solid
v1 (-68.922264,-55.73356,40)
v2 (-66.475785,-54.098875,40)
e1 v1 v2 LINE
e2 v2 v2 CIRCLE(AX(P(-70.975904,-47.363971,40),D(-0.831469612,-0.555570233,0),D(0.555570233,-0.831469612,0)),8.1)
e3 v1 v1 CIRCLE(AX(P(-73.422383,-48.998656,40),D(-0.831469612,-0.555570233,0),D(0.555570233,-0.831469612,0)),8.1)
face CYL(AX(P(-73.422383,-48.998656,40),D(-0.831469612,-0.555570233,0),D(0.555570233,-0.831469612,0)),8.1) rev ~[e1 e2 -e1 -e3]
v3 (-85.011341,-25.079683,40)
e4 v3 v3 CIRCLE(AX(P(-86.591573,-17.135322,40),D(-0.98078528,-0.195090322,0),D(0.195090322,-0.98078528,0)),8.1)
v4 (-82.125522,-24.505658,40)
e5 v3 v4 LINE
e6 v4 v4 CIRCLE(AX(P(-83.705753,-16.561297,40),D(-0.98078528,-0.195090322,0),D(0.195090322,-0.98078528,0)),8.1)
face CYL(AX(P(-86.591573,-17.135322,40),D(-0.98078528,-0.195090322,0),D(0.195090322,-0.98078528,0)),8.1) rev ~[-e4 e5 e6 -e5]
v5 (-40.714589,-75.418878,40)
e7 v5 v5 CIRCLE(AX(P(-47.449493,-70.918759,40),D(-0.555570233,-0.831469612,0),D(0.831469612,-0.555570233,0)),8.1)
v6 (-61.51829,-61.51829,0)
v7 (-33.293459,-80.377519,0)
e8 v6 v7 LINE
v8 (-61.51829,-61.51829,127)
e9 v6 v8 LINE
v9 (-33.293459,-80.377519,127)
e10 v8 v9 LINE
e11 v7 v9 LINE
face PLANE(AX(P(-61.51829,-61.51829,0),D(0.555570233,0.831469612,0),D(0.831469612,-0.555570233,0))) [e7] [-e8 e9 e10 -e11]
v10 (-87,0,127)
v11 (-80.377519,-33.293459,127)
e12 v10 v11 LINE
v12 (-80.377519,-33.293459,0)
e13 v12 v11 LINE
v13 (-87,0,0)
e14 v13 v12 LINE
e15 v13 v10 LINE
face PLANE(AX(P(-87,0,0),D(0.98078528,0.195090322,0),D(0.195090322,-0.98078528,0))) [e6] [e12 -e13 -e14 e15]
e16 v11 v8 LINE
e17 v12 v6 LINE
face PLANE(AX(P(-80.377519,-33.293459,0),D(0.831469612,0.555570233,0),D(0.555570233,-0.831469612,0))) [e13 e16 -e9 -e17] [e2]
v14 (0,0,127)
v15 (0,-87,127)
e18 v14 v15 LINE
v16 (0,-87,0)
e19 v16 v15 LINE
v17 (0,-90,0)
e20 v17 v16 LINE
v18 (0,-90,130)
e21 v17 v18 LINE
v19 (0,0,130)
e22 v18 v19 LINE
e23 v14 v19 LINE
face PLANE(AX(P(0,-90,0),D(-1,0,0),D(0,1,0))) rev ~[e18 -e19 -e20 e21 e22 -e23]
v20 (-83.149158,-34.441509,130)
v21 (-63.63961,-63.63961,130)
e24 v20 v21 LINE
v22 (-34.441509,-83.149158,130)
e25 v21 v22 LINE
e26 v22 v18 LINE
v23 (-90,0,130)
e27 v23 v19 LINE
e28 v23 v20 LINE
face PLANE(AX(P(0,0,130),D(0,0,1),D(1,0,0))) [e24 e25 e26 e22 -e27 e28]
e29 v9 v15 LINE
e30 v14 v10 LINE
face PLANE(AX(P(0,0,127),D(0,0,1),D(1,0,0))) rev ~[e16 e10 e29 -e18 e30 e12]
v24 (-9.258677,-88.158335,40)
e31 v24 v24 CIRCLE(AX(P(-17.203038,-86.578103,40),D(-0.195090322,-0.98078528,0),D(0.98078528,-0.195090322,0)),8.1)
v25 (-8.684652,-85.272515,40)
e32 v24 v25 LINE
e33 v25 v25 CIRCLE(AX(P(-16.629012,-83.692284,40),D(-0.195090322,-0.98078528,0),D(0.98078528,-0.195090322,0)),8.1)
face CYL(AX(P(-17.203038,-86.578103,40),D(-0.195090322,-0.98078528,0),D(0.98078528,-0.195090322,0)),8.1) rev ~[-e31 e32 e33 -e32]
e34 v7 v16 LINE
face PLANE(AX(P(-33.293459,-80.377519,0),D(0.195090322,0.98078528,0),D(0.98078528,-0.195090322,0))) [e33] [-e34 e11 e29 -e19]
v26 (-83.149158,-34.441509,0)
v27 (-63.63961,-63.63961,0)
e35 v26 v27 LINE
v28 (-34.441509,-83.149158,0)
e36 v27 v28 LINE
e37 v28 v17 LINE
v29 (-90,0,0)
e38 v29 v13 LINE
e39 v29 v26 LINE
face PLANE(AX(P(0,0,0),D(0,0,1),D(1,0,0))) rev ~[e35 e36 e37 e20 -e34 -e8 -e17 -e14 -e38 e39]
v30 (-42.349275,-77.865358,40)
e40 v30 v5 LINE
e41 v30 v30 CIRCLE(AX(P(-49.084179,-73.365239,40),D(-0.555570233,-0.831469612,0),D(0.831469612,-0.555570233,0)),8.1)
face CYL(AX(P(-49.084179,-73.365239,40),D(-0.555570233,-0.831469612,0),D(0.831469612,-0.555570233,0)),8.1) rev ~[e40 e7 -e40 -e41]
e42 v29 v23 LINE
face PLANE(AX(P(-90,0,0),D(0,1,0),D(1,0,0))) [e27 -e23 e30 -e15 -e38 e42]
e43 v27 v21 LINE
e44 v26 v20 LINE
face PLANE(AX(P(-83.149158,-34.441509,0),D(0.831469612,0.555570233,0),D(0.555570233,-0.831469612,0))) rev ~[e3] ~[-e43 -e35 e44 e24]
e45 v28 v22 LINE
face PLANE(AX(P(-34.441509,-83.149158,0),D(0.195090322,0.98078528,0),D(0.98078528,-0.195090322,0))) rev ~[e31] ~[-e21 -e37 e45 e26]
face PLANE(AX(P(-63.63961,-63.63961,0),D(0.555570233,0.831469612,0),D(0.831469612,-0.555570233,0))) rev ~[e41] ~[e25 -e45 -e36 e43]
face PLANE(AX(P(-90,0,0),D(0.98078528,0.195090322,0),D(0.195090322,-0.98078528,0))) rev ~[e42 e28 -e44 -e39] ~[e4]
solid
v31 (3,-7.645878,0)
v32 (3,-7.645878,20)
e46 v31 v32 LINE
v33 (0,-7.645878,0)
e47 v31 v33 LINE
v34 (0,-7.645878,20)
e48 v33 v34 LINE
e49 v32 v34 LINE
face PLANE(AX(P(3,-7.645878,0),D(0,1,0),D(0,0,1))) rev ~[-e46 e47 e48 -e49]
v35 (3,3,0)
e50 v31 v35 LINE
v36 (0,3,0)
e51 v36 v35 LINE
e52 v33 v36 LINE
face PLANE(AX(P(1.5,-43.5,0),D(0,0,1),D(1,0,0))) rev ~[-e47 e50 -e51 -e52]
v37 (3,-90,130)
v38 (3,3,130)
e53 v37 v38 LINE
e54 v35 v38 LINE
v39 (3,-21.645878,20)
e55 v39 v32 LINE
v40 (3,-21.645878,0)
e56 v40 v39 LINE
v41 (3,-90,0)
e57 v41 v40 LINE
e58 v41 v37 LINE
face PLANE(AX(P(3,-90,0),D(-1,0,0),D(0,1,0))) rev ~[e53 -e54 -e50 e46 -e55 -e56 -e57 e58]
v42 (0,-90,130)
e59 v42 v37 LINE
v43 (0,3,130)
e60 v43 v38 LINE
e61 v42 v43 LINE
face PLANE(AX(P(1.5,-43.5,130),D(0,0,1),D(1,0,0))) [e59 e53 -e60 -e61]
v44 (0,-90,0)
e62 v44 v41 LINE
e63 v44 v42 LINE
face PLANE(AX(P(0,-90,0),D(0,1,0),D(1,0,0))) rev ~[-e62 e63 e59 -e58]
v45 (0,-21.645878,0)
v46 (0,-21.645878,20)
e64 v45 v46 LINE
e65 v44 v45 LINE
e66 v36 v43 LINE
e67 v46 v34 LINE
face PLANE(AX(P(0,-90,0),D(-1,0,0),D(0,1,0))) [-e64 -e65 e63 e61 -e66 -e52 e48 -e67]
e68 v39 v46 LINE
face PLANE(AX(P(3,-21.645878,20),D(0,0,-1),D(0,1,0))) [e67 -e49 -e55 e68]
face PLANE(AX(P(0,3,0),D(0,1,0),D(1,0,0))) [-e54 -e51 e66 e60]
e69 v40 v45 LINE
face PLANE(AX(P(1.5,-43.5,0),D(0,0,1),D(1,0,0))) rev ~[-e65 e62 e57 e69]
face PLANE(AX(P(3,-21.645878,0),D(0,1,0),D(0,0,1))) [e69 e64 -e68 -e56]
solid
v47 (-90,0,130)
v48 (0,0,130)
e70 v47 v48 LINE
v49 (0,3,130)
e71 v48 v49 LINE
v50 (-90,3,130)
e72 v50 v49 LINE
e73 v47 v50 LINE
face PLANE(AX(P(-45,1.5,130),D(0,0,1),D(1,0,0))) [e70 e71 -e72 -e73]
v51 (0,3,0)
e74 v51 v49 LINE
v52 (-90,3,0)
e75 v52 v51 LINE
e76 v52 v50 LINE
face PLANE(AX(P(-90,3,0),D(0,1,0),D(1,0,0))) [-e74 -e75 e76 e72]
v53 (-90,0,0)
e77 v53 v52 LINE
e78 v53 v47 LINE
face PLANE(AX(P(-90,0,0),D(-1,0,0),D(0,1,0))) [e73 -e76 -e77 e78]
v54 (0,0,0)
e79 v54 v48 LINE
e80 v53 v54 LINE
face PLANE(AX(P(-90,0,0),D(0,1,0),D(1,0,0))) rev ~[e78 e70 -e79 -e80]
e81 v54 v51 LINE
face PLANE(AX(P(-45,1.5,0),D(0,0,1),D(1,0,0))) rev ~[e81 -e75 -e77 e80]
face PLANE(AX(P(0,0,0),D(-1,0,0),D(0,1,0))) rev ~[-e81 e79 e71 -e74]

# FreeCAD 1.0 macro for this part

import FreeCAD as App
import Part
import Sketcher

V = App.Vector
Q = App.Units.Quantity

doc = App.newDocument("Part")
body = doc.addObject("PartDesign::Body", "Body")

# Sketch on XY plane
sketch1 = body.newObject("Sketcher::SketchObject", "Sketch")
sketch1.AttachmentSupport = (doc.getObject("XY_Plane"), [""])
sketch1.MapMode = "FlatFace"
sketch1.addGeometry([
    Part.LineSegment(V(-90, 3, 0), V(-90, 0, 0)),
    Part.LineSegment(V(-90, 0, 0), V(0, 0, 0)),
    Part.LineSegment(V(0, 0, 0), V(0, 3, 0)),
    Part.LineSegment(V(0, 3, 0), V(-90, 3, 0)),
], False)
sketch1.addConstraint([
    Sketcher.Constraint("Coincident", 0, 2, 1, 1),
    Sketcher.Constraint("Coincident", 1, 2, 2, 1),
    Sketcher.Constraint("Coincident", 2, 2, 3, 1),
    Sketcher.Constraint("Coincident", 3, 2, 0, 1),
    Sketcher.Constraint("Vertical", 0),
    Sketcher.Constraint("Horizontal", 1),
    Sketcher.Constraint("Vertical", 2),
    Sketcher.Constraint("Horizontal", 3),
    Sketcher.Constraint("Coincident", 1, 2, -1, 1),
    Sketcher.Constraint("DistanceX", 1, 1, 1, 2, 90.0),
    Sketcher.Constraint("DistanceY", 0, 2, 0, 1, 3.0),
])
pad1 = body.newObject("PartDesign::Pad", "Pad")
pad1.Profile = sketch1
pad1.Length = 130
body2 = doc.addObject("PartDesign::Body", "Body001")

# Sketch on XY plane
sketch2 = body2.newObject("Sketcher::SketchObject", "Sketch001")
sketch2.AttachmentSupport = (doc.getObject("XY_Plane001"), [""])
sketch2.MapMode = "FlatFace"
sketch2.addGeometry([
    Part.LineSegment(V(-90, 90, 0), V(-90, 0, 0)),
    Part.LineSegment(V(-90, 0, 0), V(0, 0, 0)),
    Part.LineSegment(V(0, 0, 0), V(0, 90, 0)),
    Part.LineSegment(V(0, 90, 0), V(-90, 90, 0)),
], False)
sketch2.addConstraint([
    Sketcher.Constraint("Coincident", 0, 2, 1, 1),
    Sketcher.Constraint("Coincident", 1, 2, 2, 1),
    Sketcher.Constraint("Coincident", 2, 2, 3, 1),
    Sketcher.Constraint("Coincident", 3, 2, 0, 1),
    Sketcher.Constraint("Vertical", 0),
    Sketcher.Constraint("Horizontal", 1),
    Sketcher.Constraint("Vertical", 2),
    Sketcher.Constraint("Horizontal", 3),
    Sketcher.Constraint("Coincident", 1, 2, -1, 1),
    Sketcher.Constraint("Equal", 3, 0),
    Sketcher.Constraint("DistanceX", 1, 1, 1, 2, 90.0),
])
pad2 = body2.newObject("PartDesign::Pad", "Pad001")
pad2.Profile = sketch2
pad2.Length = 130
body3 = doc.addObject("PartDesign::Body", "Body002")

# Sketch on XY plane
sketch3 = body3.newObject("Sketcher::SketchObject", "Sketch002")
sketch3.AttachmentSupport = (doc.getObject("XY_Plane002"), [""])
sketch3.MapMode = "FlatFace"
sketch3.addGeometry([
    Part.LineSegment(V(0, 90, 0), V(0, -90, 0)),
    Part.LineSegment(V(0, -90, 0), V(90, -90, 0)),
    Part.LineSegment(V(90, -90, 0), V(90, 90, 0)),
    Part.LineSegment(V(90, 90, 0), V(0, 90, 0)),
], False)
sketch3.addConstraint([
    Sketcher.Constraint("Coincident", 0, 2, 1, 1),
    Sketcher.Constraint("Coincident", 1, 2, 2, 1),
    Sketcher.Constraint("Coincident", 2, 2, 3, 1),
    Sketcher.Constraint("Coincident", 3, 2, 0, 1),
    Sketcher.Constraint("Vertical", 0),
    Sketcher.Constraint("Horizontal", 1),
    Sketcher.Constraint("Vertical", 2),
    Sketcher.Constraint("Horizontal", 3),
    Sketcher.Constraint("Symmetric", 0, 2, 3, 2, -1, 1),
    Sketcher.Constraint("DistanceX", 1, 1, 1, 2, 90.0),
    Sketcher.Constraint("DistanceY", 0, 2, 0, 1, 180.0),
])
pad3 = body3.newObject("PartDesign::Pad", "Pad002")
pad3.Profile = sketch3
pad3.Length = 130
body4 = doc.addObject("PartDesign::Body", "Body003")

# Sketch on XY plane
sketch4 = body4.newObject("Sketcher::SketchObject", "Sketch003")
sketch4.AttachmentSupport = (doc.getObject("XY_Plane003"), [""])
sketch4.MapMode = "FlatFace"
sketch4.addGeometry([
    Part.LineSegment(V(87, 0, 0), V(80, 33, 0)),  # 0
    Part.LineSegment(V(80, 33, 0), V(62, 62, 0)),  # 1
    Part.LineSegment(V(62, 62, 0), V(33, 80, 0)),  # 2
    Part.LineSegment(V(33, 80, 0), V(0, 87, 0)),  # 3
    Part.LineSegment(V(0, 87, 0), V(-33, 80, 0)),  # 4
    Part.LineSegment(V(-33, 80, 0), V(-62, 62, 0)),  # 5
    Part.LineSegment(V(-62, 62, 0), V(-80, 33, 0)),  # 6
    Part.LineSegment(V(-80, 33, 0), V(-87, 0, 0)),  # 7
    Part.LineSegment(V(-87, 0, 0), V(-80, -33, 0)),  # 8
    Part.LineSegment(V(-80, -33, 0), V(-62, -62, 0)),  # 9
    Part.LineSegment(V(-62, -62, 0), V(-33, -80, 0)),  # 10
    Part.LineSegment(V(-33, -80, 0), V(0, -87, 0)),  # 11
    Part.LineSegment(V(0, -87, 0), V(33, -80, 0)),  # 12
    Part.LineSegment(V(33, -80, 0), V(62, -62, 0)),  # 13
    Part.LineSegment(V(62, -62, 0), V(80, -33, 0)),  # 14
    Part.LineSegment(V(80, -33, 0), V(87, 0, 0)),  # 15
], False)
sketch4.addConstraint([
    Sketcher.Constraint("Coincident", 0, 2, 1, 1),
    Sketcher.Constraint("Coincident", 1, 2, 2, 1),
    Sketcher.Constraint("Coincident", 2, 2, 3, 1),
    Sketcher.Constraint("Coincident", 3, 2, 4, 1),
    Sketcher.Constraint("Coincident", 4, 2, 5, 1),
    Sketcher.Constraint("Coincident", 5, 2, 6, 1),
    Sketcher.Constraint("Coincident", 6, 2, 7, 1),
    Sketcher.Constraint("Coincident", 7, 2, 8, 1),
    Sketcher.Constraint("Coincident", 8, 2, 9, 1),
    Sketcher.Constraint("Coincident", 9, 2, 10, 1),
    Sketcher.Constraint("Coincident", 10, 2, 11, 1),
    Sketcher.Constraint("Coincident", 11, 2, 12, 1),
    Sketcher.Constraint("Coincident", 12, 2, 13, 1),
    Sketcher.Constraint("Coincident", 13, 2, 14, 1),
    Sketcher.Constraint("Coincident", 14, 2, 15, 1),
    Sketcher.Constraint("Coincident", 15, 2, 0, 1),
    Sketcher.Constraint("Symmetric", 0, 2, 8, 2, -1, 1),
    Sketcher.Constraint("Symmetric", 1, 2, 9, 2, -1, 1),
    Sketcher.Constraint("Symmetric", 2, 2, 10, 2, -1, 1),
    Sketcher.Constraint("Symmetric", 3, 2, 11, 2, -1, 1),
    Sketcher.Constraint("Symmetric", 4, 2, 12, 2, -1, 1),
    Sketcher.Constraint("Symmetric", 5, 2, 13, 2, -1, 1),
    Sketcher.Constraint("Symmetric", 6, 2, 14, 2, -1, 1),
    Sketcher.Constraint("Symmetric", 7, 2, 15, 2, -1, 1),
    Sketcher.Constraint("Symmetric", 2, 2, 4, 2, -2),
    Sketcher.Constraint("Symmetric", 1, 2, 5, 2, -2),
    Sketcher.Constraint("Symmetric", 0, 2, 6, 2, -2),
    Sketcher.Constraint("PointOnObject", 3, 2, -2),
    Sketcher.Constraint("PointOnObject", 7, 2, -1),
    Sketcher.Constraint("Perpendicular", 0, 4),
    Sketcher.Constraint("Perpendicular", 1, 5),
    Sketcher.Constraint("Equal", 0, 1),
    Sketcher.Constraint("Equal", 1, 2),
    Sketcher.Constraint("Equal", 2, 3),
    Sketcher.Constraint("DistanceY", -1, 1, 3, 2, 87.0),
    Sketcher.Constraint("Angle", 0, Q("101.25 deg")),
    Sketcher.Constraint("Angle", 1, Q("123.75 deg")),
])
pad4 = body4.newObject("PartDesign::Pad", "Pad003")
pad4.Profile = sketch4
pad4.Length = 127
body5 = doc.addObject("PartDesign::Body", "Body004")

# Sketch on XY plane
sketch5 = body5.newObject("Sketcher::SketchObject", "Sketch004")
sketch5.AttachmentSupport = (doc.getObject("XY_Plane004"), [""])
sketch5.MapMode = "FlatFace"
sketch5.addGeometry([
    Part.LineSegment(V(90, 0, 0), V(83, 34, 0)),  # 0
    Part.LineSegment(V(83, 34, 0), V(64, 64, 0)),  # 1
    Part.LineSegment(V(64, 64, 0), V(34, 83, 0)),  # 2
    Part.LineSegment(V(34, 83, 0), V(0, 90, 0)),  # 3
    Part.LineSegment(V(0, 90, 0), V(-34, 83, 0)),  # 4
    Part.LineSegment(V(-34, 83, 0), V(-64, 64, 0)),  # 5
    Part.LineSegment(V(-64, 64, 0), V(-83, 34, 0)),  # 6
    Part.LineSegment(V(-83, 34, 0), V(-90, 0, 0)),  # 7
    Part.LineSegment(V(-90, 0, 0), V(-83, -34, 0)),  # 8
    Part.LineSegment(V(-83, -34, 0), V(-64, -64, 0)),  # 9
    Part.LineSegment(V(-64, -64, 0), V(-34, -83, 0)),  # 10
    Part.LineSegment(V(-34, -83, 0), V(0, -90, 0)),  # 11
    Part.LineSegment(V(0, -90, 0), V(34, -83, 0)),  # 12
    Part.LineSegment(V(34, -83, 0), V(64, -64, 0)),  # 13
    Part.LineSegment(V(64, -64, 0), V(83, -34, 0)),  # 14
    Part.LineSegment(V(83, -34, 0), V(90, 0, 0)),  # 15
], False)
sketch5.addConstraint([
    Sketcher.Constraint("Coincident", 0, 2, 1, 1),
    Sketcher.Constraint("Coincident", 1, 2, 2, 1),
    Sketcher.Constraint("Coincident", 2, 2, 3, 1),
    Sketcher.Constraint("Coincident", 3, 2, 4, 1),
    Sketcher.Constraint("Coincident", 4, 2, 5, 1),
    Sketcher.Constraint("Coincident", 5, 2, 6, 1),
    Sketcher.Constraint("Coincident", 6, 2, 7, 1),
    Sketcher.Constraint("Coincident", 7, 2, 8, 1),
    Sketcher.Constraint("Coincident", 8, 2, 9, 1),
    Sketcher.Constraint("Coincident", 9, 2, 10, 1),
    Sketcher.Constraint("Coincident", 10, 2, 11, 1),
    Sketcher.Constraint("Coincident", 11, 2, 12, 1),
    Sketcher.Constraint("Coincident", 12, 2, 13, 1),
    Sketcher.Constraint("Coincident", 13, 2, 14, 1),
    Sketcher.Constraint("Coincident", 14, 2, 15, 1),
    Sketcher.Constraint("Coincident", 15, 2, 0, 1),
    Sketcher.Constraint("Symmetric", 0, 2, 8, 2, -1, 1),
    Sketcher.Constraint("Symmetric", 1, 2, 9, 2, -1, 1),
    Sketcher.Constraint("Symmetric", 2, 2, 10, 2, -1, 1),
    Sketcher.Constraint("Symmetric", 3, 2, 11, 2, -1, 1),
    Sketcher.Constraint("Symmetric", 4, 2, 12, 2, -1, 1),
    Sketcher.Constraint("Symmetric", 5, 2, 13, 2, -1, 1),
    Sketcher.Constraint("Symmetric", 6, 2, 14, 2, -1, 1),
    Sketcher.Constraint("Symmetric", 7, 2, 15, 2, -1, 1),
    Sketcher.Constraint("Symmetric", 2, 2, 4, 2, -2),
    Sketcher.Constraint("Symmetric", 1, 2, 5, 2, -2),
    Sketcher.Constraint("Symmetric", 0, 2, 6, 2, -2),
    Sketcher.Constraint("PointOnObject", 3, 2, -2),
    Sketcher.Constraint("PointOnObject", 7, 2, -1),
    Sketcher.Constraint("Perpendicular", 0, 4),
    Sketcher.Constraint("Perpendicular", 1, 5),
    Sketcher.Constraint("Equal", 0, 1),
    Sketcher.Constraint("Equal", 1, 2),
    Sketcher.Constraint("Equal", 2, 3),
    Sketcher.Constraint("DistanceY", -1, 1, 3, 2, 90.0),
    Sketcher.Constraint("Angle", 0, Q("101.25 deg")),
    Sketcher.Constraint("Angle", 1, Q("123.75 deg")),
])
pad5 = body5.newObject("PartDesign::Pad", "Pad004")
pad5.Profile = sketch5
pad5.Length = 130
doc.recompute()

boolean = body5.newObject("PartDesign::Boolean", "Boolean")
boolean.Type = "Cut"
boolean.addObjects([body4])
doc.recompute()

boolean2 = body5.newObject("PartDesign::Boolean", "Boolean001")
boolean2.Type = "Cut"
boolean2.addObjects([body3])
doc.recompute()

boolean3 = body5.newObject("PartDesign::Boolean", "Boolean002")
boolean3.Type = "Cut"
boolean3.addObjects([body2])

# Sketch on an angled plane
sketch6 = body5.newObject("Sketcher::SketchObject", "Sketch005")
sketch6.Placement = App.Placement(V(-86.574579, -17.220754, 0), App.Rotation(V(0.195090322, -0.98078528, 0), V(0, 0, 0.999999999), V(-0.98078528, -0.195090322, 0), "ZXY"))
sketch6.addGeometry(Part.Circle(V(0, 40, 0), V(0, 0, 1), 8), False)
sketch6.addConstraint([
    Sketcher.Constraint("Diameter", 0, 16.2),
    Sketcher.Constraint("DistanceY", -1, 1, 0, 3, 40.0),
    Sketcher.Constraint("DistanceX", 0, 3, -1, 1, 0.087106),
])
pocket1 = body5.newObject("PartDesign::Pocket", "Pocket")
pocket1.Profile = sketch6
pocket1.Length = 3

# Sketch on an angled plane
sketch7 = body5.newObject("Sketcher::SketchObject", "Sketch006")
sketch7.Placement = App.Placement(V(-73.394384, -49.04056, 0), App.Rotation(V(0.555570233, -0.831469612, 0), V(0, 0, 0.999999999), V(-0.831469612, -0.555570233, 0), "ZXY"))
sketch7.addGeometry(Part.Circle(V(0, 40, 0), V(0, 0, 1), 8), False)
sketch7.addConstraint([
    Sketcher.Constraint("Diameter", 0, 16.2),
    Sketcher.Constraint("DistanceY", -1, 1, 0, 3, 40.0),
    Sketcher.Constraint("DistanceX", 0, 3, -1, 1, 0.050397),
])
pocket2 = body5.newObject("PartDesign::Pocket", "Pocket001")
pocket2.Profile = sketch7
pocket2.Length = 3

# Sketch on an angled plane
sketch8 = body5.newObject("Sketcher::SketchObject", "Sketch007")
sketch8.Placement = App.Placement(V(-49.04056, -73.394384, 0), App.Rotation(V(0.831469612, -0.555570233, 0), V(0, 0, 0.999999999), V(-0.555570233, -0.831469612, 0), "ZXY"))
sketch8.addGeometry(Part.Circle(V(0, 40, 0), V(0, 0, 1), 8), False)
sketch8.addConstraint([
    Sketcher.Constraint("Diameter", 0, 16.2),
    Sketcher.Constraint("DistanceY", -1, 1, 0, 3, 40.0),
    Sketcher.Constraint("DistanceX", 0, 3, -1, 1, 0.05246),
])
pocket3 = body5.newObject("PartDesign::Pocket", "Pocket002")
pocket3.Profile = sketch8
pocket3.Length = 3

# Sketch on an angled plane
sketch9 = body5.newObject("Sketcher::SketchObject", "Sketch008")
sketch9.Placement = App.Placement(V(-17.220754, -86.574579, 0), App.Rotation(V(0.98078528, -0.195090322, 0), V(0, 0, 0.999999999), V(-0.195090322, -0.98078528, 0), "ZXY"))
sketch9.addGeometry(Part.Circle(V(0, 40, 0), V(0, 0, 1), 8), False)
sketch9.addConstraint([
    Sketcher.Constraint("Diameter", 0, 16.2),
    Sketcher.Constraint("DistanceY", -1, 1, 0, 3, 40.0),
    Sketcher.Constraint("DistanceX", -1, 1, 0, 3, 0.018064),
])
pocket4 = body5.newObject("PartDesign::Pocket", "Pocket003")
pocket4.Profile = sketch9
pocket4.Length = 3
body6 = doc.addObject("PartDesign::Body", "Body005")

# Sketch on XY plane
sketch10 = body6.newObject("Sketcher::SketchObject", "Sketch009")
sketch10.AttachmentSupport = (doc.getObject("XY_Plane005"), [""])
sketch10.MapMode = "FlatFace"
sketch10.addGeometry([
    Part.LineSegment(V(0, 3, 0), V(0, -90, 0)),
    Part.LineSegment(V(0, -90, 0), V(3, -90, 0)),
    Part.LineSegment(V(3, -90, 0), V(3, 3, 0)),
    Part.LineSegment(V(3, 3, 0), V(0, 3, 0)),
], False)
sketch10.addConstraint([
    Sketcher.Constraint("Coincident", 0, 2, 1, 1),
    Sketcher.Constraint("Coincident", 1, 2, 2, 1),
    Sketcher.Constraint("Coincident", 2, 2, 3, 1),
    Sketcher.Constraint("Coincident", 3, 2, 0, 1),
    Sketcher.Constraint("Vertical", 0),
    Sketcher.Constraint("Horizontal", 1),
    Sketcher.Constraint("Vertical", 2),
    Sketcher.Constraint("Horizontal", 3),
    Sketcher.Constraint("PointOnObject", 0, 2, -2),
    Sketcher.Constraint("DistanceX", 1, 1, 1, 2, 3.0),
    Sketcher.Constraint("DistanceY", 0, 2, 0, 1, 93.0),
    Sketcher.Constraint("DistanceY", 0, 2, -1, 1, 90.0),
])
pad6 = body6.newObject("PartDesign::Pad", "Pad005")
pad6.Profile = sketch10
pad6.Length = 130

# Sketch on YZ plane
sketch11 = body6.newObject("Sketcher::SketchObject", "Sketch010")
sketch11.AttachmentSupport = (doc.getObject("YZ_Plane005"), [""])
sketch11.MapMode = "FlatFace"
sketch11.AttachmentOffset = App.Placement(V(0, 0, 3), App.Rotation())
sketch11.addGeometry([
    Part.LineSegment(V(-22, 20, 0), V(-22, 0, 0)),
    Part.LineSegment(V(-22, 0, 0), V(-8, 0, 0)),
    Part.LineSegment(V(-8, 0, 0), V(-8, 20, 0)),
    Part.LineSegment(V(-8, 20, 0), V(-22, 20, 0)),
], False)
sketch11.addConstraint([
    Sketcher.Constraint("Coincident", 0, 2, 1, 1),
    Sketcher.Constraint("Coincident", 1, 2, 2, 1),
    Sketcher.Constraint("Coincident", 2, 2, 3, 1),
    Sketcher.Constraint("Coincident", 3, 2, 0, 1),
    Sketcher.Constraint("Vertical", 0),
    Sketcher.Constraint("Horizontal", 1),
    Sketcher.Constraint("Vertical", 2),
    Sketcher.Constraint("Horizontal", 3),
    Sketcher.Constraint("PointOnObject", 0, 2, -1),
    Sketcher.Constraint("DistanceX", 1, 1, 1, 2, 14.0),
    Sketcher.Constraint("DistanceY", 0, 2, 0, 1, 20.0),
    Sketcher.Constraint("DistanceX", 0, 2, -1, 1, 21.645878),
])
pocket5 = body6.newObject("PartDesign::Pocket", "Pocket004")
pocket5.Profile = sketch11
pocket5.Length = 3

doc.recompute()
